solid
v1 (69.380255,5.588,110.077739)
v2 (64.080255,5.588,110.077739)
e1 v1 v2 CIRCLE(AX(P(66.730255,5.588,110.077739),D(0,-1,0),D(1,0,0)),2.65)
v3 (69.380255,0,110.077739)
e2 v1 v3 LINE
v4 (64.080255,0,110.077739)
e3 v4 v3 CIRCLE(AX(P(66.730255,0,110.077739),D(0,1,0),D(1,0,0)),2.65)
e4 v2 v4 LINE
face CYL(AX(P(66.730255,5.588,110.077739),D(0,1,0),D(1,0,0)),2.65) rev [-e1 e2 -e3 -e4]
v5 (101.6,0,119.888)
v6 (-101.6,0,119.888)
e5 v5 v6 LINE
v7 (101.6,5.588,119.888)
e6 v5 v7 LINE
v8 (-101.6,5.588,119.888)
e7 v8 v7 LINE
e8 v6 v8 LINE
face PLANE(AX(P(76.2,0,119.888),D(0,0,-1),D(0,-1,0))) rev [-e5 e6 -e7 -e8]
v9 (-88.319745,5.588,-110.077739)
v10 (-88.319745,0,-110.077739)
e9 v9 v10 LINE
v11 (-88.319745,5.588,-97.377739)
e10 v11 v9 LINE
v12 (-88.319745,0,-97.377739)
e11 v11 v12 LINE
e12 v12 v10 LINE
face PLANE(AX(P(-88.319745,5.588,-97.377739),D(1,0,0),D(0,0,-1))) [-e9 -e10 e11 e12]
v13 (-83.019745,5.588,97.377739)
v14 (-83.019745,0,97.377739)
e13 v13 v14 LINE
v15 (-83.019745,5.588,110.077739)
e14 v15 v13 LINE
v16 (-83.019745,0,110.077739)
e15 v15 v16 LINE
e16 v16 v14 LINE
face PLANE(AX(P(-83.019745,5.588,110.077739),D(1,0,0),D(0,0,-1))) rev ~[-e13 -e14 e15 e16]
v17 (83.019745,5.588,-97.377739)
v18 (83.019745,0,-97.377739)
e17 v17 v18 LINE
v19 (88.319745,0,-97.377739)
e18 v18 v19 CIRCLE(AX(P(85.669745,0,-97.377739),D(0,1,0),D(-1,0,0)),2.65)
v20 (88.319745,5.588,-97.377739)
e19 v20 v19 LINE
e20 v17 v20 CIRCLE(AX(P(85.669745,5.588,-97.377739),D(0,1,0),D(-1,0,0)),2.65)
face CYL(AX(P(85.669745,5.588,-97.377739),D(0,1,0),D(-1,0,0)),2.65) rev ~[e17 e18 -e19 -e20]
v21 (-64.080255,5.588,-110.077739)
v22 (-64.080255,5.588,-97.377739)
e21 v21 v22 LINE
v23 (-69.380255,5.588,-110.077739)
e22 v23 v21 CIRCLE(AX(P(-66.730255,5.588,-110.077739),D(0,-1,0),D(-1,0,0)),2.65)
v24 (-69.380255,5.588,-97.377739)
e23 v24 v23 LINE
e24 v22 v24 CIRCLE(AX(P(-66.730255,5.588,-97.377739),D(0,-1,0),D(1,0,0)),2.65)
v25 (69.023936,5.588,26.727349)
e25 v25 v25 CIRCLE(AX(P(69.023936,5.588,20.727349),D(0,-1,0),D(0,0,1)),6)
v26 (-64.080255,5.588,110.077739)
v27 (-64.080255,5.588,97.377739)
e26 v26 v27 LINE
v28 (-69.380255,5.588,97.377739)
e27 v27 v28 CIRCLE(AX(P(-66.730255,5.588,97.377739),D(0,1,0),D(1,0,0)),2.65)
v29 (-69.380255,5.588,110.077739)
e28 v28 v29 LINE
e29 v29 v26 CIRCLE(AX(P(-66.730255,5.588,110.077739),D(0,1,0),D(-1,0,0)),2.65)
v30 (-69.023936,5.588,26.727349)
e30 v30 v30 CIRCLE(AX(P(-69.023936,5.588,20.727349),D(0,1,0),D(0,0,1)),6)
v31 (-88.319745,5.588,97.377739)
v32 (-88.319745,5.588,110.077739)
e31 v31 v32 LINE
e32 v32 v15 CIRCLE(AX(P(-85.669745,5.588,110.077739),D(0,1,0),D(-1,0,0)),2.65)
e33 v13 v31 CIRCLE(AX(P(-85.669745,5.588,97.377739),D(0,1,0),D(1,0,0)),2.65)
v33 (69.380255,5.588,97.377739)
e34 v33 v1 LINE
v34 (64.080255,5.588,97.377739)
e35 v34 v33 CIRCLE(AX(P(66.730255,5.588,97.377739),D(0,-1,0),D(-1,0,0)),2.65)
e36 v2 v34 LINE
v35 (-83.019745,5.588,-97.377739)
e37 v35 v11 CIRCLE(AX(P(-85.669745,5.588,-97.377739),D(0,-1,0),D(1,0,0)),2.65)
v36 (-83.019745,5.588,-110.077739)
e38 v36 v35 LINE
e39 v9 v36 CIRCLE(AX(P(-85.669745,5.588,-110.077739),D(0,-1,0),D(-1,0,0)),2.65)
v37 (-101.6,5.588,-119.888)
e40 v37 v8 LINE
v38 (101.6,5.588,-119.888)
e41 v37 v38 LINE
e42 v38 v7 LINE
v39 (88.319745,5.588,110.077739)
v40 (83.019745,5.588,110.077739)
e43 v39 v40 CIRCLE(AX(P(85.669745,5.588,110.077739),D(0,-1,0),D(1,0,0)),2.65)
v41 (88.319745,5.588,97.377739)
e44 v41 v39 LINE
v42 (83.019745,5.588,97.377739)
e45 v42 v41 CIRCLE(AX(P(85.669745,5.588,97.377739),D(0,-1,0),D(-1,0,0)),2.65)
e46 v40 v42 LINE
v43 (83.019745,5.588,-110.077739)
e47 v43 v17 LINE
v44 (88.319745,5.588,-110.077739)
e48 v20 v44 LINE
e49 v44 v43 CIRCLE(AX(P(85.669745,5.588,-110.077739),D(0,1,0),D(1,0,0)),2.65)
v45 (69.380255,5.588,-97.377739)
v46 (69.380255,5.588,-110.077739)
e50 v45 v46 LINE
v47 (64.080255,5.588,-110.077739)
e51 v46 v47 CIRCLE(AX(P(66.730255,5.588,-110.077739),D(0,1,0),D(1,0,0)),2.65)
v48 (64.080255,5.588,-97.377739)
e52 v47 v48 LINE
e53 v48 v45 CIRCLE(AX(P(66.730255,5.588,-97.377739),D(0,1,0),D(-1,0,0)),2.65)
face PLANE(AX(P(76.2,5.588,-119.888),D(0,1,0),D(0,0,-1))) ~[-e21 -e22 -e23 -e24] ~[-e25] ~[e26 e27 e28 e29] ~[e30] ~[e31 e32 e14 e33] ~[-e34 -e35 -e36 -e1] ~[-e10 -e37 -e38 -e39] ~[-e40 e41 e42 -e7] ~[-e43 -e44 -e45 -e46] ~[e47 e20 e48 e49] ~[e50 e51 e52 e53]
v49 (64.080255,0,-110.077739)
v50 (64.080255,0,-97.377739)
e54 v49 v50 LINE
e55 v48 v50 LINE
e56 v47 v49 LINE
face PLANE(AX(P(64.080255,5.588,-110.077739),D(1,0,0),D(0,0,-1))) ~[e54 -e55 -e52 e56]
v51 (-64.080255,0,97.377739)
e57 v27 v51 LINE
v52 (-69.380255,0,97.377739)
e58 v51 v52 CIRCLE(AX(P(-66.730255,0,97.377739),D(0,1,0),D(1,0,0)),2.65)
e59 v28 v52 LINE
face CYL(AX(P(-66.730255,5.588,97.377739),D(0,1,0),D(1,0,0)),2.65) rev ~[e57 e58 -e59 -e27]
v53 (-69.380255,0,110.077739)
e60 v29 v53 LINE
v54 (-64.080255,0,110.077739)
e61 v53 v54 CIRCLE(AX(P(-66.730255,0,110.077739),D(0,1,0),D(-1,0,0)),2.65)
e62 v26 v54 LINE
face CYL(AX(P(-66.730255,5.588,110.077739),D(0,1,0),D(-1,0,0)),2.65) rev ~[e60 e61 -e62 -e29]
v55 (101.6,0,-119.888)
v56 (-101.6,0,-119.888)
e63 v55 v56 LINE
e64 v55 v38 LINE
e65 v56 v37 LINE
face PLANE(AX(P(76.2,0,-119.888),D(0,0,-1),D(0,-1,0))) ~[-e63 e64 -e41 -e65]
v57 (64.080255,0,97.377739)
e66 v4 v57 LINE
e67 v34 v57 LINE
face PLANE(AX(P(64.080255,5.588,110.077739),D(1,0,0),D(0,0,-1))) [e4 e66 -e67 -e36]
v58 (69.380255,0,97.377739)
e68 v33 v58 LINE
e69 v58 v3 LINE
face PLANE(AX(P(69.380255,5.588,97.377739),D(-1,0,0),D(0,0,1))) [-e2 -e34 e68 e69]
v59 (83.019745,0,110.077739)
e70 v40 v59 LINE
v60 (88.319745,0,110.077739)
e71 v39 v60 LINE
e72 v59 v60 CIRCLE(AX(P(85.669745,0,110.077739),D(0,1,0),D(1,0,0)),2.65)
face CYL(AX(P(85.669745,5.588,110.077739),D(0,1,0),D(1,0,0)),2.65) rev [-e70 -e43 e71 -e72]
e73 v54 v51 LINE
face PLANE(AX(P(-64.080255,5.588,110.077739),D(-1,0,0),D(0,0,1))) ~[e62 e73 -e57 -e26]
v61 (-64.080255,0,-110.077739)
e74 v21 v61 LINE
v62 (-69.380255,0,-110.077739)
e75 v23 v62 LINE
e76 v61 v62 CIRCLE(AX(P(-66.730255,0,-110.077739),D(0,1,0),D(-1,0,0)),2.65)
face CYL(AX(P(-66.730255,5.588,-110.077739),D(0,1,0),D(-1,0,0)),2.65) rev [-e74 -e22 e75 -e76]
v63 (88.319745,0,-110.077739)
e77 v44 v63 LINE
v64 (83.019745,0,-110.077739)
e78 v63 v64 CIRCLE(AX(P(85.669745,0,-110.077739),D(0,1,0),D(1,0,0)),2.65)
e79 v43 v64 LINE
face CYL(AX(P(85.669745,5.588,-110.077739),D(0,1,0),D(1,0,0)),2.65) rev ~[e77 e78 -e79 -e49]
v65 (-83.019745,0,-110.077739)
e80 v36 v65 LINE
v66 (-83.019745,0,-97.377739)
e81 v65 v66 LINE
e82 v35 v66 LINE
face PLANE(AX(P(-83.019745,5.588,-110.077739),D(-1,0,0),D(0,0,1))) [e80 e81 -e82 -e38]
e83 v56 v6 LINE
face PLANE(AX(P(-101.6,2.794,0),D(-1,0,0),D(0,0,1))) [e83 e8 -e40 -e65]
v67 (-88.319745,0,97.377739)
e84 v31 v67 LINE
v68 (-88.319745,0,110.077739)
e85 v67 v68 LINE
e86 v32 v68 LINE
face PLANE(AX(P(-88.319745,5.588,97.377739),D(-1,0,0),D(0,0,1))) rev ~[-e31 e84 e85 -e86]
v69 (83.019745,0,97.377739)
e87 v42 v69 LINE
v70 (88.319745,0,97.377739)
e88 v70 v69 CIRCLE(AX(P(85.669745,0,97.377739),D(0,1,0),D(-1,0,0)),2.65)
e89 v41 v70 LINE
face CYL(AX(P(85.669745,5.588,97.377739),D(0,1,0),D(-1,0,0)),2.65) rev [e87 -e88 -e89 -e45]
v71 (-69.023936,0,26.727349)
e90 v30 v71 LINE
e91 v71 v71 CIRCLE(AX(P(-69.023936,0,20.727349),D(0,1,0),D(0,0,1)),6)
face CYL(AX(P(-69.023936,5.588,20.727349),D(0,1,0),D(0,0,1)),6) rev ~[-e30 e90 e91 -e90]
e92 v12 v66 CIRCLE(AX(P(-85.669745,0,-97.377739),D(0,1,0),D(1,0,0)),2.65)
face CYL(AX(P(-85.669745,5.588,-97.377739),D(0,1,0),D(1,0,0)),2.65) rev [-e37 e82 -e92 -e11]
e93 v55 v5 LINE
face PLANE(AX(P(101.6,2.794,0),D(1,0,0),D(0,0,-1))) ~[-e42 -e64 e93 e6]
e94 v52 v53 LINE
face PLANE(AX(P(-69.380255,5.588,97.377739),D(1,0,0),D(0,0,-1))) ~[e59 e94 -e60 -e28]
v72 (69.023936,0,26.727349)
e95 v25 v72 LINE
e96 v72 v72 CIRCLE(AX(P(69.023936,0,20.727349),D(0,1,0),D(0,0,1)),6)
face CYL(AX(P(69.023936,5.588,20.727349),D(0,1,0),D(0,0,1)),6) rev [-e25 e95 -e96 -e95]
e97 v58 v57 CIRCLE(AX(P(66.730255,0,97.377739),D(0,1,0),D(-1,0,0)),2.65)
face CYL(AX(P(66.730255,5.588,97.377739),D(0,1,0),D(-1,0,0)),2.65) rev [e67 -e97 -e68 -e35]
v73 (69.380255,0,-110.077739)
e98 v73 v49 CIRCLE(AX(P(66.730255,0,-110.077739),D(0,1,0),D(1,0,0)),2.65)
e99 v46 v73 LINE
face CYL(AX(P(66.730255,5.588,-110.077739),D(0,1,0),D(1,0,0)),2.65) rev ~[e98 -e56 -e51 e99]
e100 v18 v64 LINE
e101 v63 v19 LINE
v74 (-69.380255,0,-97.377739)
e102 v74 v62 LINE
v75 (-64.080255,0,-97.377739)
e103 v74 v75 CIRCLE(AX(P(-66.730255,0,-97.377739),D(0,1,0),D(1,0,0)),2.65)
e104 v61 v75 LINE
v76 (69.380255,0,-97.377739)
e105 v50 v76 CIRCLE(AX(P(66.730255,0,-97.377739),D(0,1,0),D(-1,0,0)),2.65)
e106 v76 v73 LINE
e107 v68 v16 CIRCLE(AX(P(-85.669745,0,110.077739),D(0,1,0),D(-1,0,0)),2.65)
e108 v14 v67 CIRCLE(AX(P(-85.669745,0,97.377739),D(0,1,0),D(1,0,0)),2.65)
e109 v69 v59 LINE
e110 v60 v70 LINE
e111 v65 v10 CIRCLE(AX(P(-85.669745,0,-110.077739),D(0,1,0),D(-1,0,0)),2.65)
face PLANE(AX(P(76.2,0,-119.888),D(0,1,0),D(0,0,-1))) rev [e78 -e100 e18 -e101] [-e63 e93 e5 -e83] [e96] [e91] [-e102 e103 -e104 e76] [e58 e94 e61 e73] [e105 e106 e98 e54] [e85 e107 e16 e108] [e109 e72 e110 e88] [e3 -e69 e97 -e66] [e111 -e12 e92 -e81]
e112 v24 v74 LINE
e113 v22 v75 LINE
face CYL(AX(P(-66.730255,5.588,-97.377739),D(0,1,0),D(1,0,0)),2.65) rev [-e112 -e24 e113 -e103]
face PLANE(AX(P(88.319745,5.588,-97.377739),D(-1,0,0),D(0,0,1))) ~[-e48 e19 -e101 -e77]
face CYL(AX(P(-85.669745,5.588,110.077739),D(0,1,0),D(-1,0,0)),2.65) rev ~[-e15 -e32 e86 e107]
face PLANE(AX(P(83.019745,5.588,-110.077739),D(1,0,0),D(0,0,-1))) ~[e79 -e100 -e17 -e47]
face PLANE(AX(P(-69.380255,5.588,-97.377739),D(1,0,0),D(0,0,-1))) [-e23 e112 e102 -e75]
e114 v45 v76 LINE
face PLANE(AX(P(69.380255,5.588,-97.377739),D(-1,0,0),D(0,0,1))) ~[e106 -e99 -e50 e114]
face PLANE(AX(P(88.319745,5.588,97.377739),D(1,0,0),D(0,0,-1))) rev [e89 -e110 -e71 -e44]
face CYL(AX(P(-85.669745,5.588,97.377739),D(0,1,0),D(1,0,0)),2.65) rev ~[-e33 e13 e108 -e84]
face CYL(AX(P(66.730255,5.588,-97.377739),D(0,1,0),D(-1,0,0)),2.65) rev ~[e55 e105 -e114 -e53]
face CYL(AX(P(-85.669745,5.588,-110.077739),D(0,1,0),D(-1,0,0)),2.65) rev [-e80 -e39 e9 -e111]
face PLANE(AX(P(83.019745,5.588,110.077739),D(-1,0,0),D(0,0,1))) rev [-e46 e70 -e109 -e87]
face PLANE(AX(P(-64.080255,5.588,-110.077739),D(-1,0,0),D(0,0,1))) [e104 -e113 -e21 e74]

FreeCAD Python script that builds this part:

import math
import FreeCAD as App
import Part
import Sketcher
from FreeCAD import Vector
Q = App.Units.Quantity


def add_polygon(sketch, points):
    """Adds a closed chain of lines whose ends are joined by coincident constraints."""
    first, n = sketch.GeometryCount, len(points)
    for a, b in zip(points, points[1:] + points[:1]):
        sketch.addGeometry(Part.LineSegment(App.Vector(*a, 0), App.Vector(*b, 0)), False)
    for i in range(n):
        sketch.addConstraint(Sketcher.Constraint("Coincident", first + i, 2, first + (i + 1) % n, 1))

doc = App.newDocument("Part")
params = doc.addObject("Spreadsheet::Sheet", "Params")
for row, (alias, value) in enumerate([
    ("sketch1_width", "6 in"),
    ("sketch1_height", "9.44 in"),
    ("pad1_length", "0.22 in"),
    ("sketch2_height", "0.5 in"),
    ("sketch3_height", "0.5 in"),
    ("sketch4_width", "0.22 in"),
    ("sketch4_height", "9.44 in"),
    ("pad2_length", "1 in"),
    ("sketch5_height", "0.5 in"),
], start=1):
    params.set(f"A{row}", alias)
    params.set(f"B{row}", "=" + value)
    params.setAlias(f"B{row}", alias)

body = doc.addObject("PartDesign::Body", "Body")

sketch1 = doc.addObject("Sketcher::SketchObject", "Sketch")
body.addObject(sketch1)
sketch1.AttachmentSupport = (doc.XZ_Plane, [""])
sketch1.MapMode = "FlatFace"
add_polygon(sketch1, [(-76, -120), (-76, 120), (76, 120), (76, -120)])
sketch1.addConstraint([
    Sketcher.Constraint("Vertical", 0),
    Sketcher.Constraint("Horizontal", 1),
    Sketcher.Constraint("Vertical", 2),
    Sketcher.Constraint("Horizontal", 3),
    Sketcher.Constraint("Symmetric", 0, 2, 2, 2, -1, 1),
    Sketcher.Constraint("DistanceX", 1, 1, 1, 2, Q("6 in")),
    Sketcher.Constraint("DistanceY", 0, 1, 0, 2, Q("9.44 in")),
])
sketch1.setExpression("Constraints[9]", "Params.sketch1_width")
sketch1.setExpression("Constraints[10]", "Params.sketch1_height")
pad1 = doc.addObject("PartDesign::Pad", "Pad")
body.addObject(pad1)
pad1.Profile = sketch1
pad1.setExpression("Length", "Params.pad1_length")
pad1.Reversed = True

sketch2 = doc.addObject("Sketcher::SketchObject", "Sketch001")
body.addObject(sketch2)
sketch2.AttachmentSupport = (doc.XZ_Plane, [""])
sketch2.MapMode = "FlatFace"
sketch2.AttachmentOffset = App.Placement(Vector(0, 0, -0.22 * 25.4), App.Rotation())
sketch2.addGeometry([
    Part.LineSegment(Vector(-69.4, -110.1, 0), Vector(-69.4, -97.4, 0)),
    Part.ArcOfCircle(Part.Circle(Vector(-66.7, -97.4, 0), Vector(0, 0, 1), 2.6), math.radians(0), math.radians(180)),
    Part.LineSegment(Vector(-64.1, -97.4, 0), Vector(-64.1, -110.1, 0)),
    Part.ArcOfCircle(Part.Circle(Vector(-66.7, -110.1, 0), Vector(0, 0, 1), 2.6), math.radians(180), math.radians(360)),
], False)
sketch2.addConstraint([
    Sketcher.Constraint("Tangent", 0, 2, 1, 2),
    Sketcher.Constraint("Tangent", 1, 1, 2, 1),
    Sketcher.Constraint("Tangent", 2, 2, 3, 2),
    Sketcher.Constraint("Tangent", 3, 1, 0, 1),
    Sketcher.Constraint("Vertical", 0),
    Sketcher.Constraint("Vertical", 2),
    Sketcher.Constraint("DistanceY", 0, 1, 0, 2, Q("0.5 in")),
    Sketcher.Constraint("Radius", 1, Q("2.65 mm")),
    Sketcher.Constraint("DistanceY", 1, 3, -1, 1, Q("97.377739 mm")),
    Sketcher.Constraint("DistanceX", 1, 3, -1, 1, Q("66.730255 mm")),
])
sketch2.setExpression("Constraints[6]", "Params.sketch2_height")
pocket1 = doc.addObject("PartDesign::Pocket", "Pocket")
body.addObject(pocket1)
pocket1.Profile = sketch2
pocket1.Type = "ThroughAll"
pocket1.Reversed = True
doc.recompute()

mirrored = doc.addObject("PartDesign::Mirrored", "Mirrored")
body.addObject(mirrored)
mirrored.Originals = [pocket1]
mirrored.MirrorPlane = (doc.XY_Plane, [""])
body.Tip = mirrored
doc.recompute()

mirrored2 = doc.addObject("PartDesign::Mirrored", "Mirrored001")
body.addObject(mirrored2)
mirrored2.Originals = [pocket1]
mirrored2.MirrorPlane = (doc.YZ_Plane, [""])
body.Tip = mirrored2

sketch3 = doc.addObject("Sketcher::SketchObject", "Sketch002")
body.addObject(sketch3)
sketch3.AttachmentSupport = (doc.XZ_Plane, [""])
sketch3.MapMode = "FlatFace"
sketch3.AttachmentOffset = App.Placement(Vector(0, 0, -0.22 * 25.4), App.Rotation())
sketch3.addGeometry([
    Part.LineSegment(Vector(69.4, 110.1, 0), Vector(69.4, 97.4, 0)),
    Part.ArcOfCircle(Part.Circle(Vector(66.7, 97.4, 0), Vector(0, 0, 1), 2.6), math.radians(180), math.radians(360)),
    Part.LineSegment(Vector(64.1, 97.4, 0), Vector(64.1, 110.1, 0)),
    Part.ArcOfCircle(Part.Circle(Vector(66.7, 110.1, 0), Vector(0, 0, 1), 2.6), math.radians(0), math.radians(180)),
], False)
sketch3.addConstraint([
    Sketcher.Constraint("Tangent", 0, 2, 1, 2),
    Sketcher.Constraint("Tangent", 1, 1, 2, 1),
    Sketcher.Constraint("Tangent", 2, 2, 3, 2),
    Sketcher.Constraint("Tangent", 3, 1, 0, 1),
    Sketcher.Constraint("Vertical", 0),
    Sketcher.Constraint("Vertical", 2),
    Sketcher.Constraint("DistanceY", 0, 2, 0, 1, Q("0.5 in")),
    Sketcher.Constraint("Radius", 1, Q("2.65 mm")),
    Sketcher.Constraint("DistanceY", -1, 1, 1, 3, Q("97.377739 mm")),
    Sketcher.Constraint("DistanceX", -1, 1, 1, 3, Q("66.730255 mm")),
])
sketch3.setExpression("Constraints[6]", "Params.sketch3_height")
pocket2 = doc.addObject("PartDesign::Pocket", "Pocket001")
body.addObject(pocket2)
pocket2.Profile = sketch3
pocket2.Type = "ThroughAll"
pocket2.Reversed = True

sketch4 = doc.addObject("Sketcher::SketchObject", "Sketch003")
body.addObject(sketch4)
sketch4.AttachmentSupport = (doc.YZ_Plane, [""])
sketch4.MapMode = "FlatFace"
sketch4.AttachmentOffset = App.Placement(Vector(0, 0, -3 * 25.4), App.Rotation())
add_polygon(sketch4, [(6, -120), (0, -120), (0, 120), (6, 120)])
sketch4.addConstraint([
    Sketcher.Constraint("Horizontal", 0),
    Sketcher.Constraint("Vertical", 1),
    Sketcher.Constraint("Horizontal", 2),
    Sketcher.Constraint("Vertical", 3),
    Sketcher.Constraint("Symmetric", 0, 2, 1, 2, -1, 1),
    Sketcher.Constraint("DistanceX", 0, 2, 0, 1, Q("0.22 in")),
    Sketcher.Constraint("DistanceY", 1, 1, 1, 2, Q("9.44 in")),
])
sketch4.setExpression("Constraints[9]", "Params.sketch4_width")
sketch4.setExpression("Constraints[10]", "Params.sketch4_height")
pad2 = doc.addObject("PartDesign::Pad", "Pad001")
body.addObject(pad2)
pad2.Profile = sketch4
pad2.setExpression("Length", "Params.pad2_length")
pad2.Reversed = True

sketch5 = doc.addObject("Sketcher::SketchObject", "Sketch004")
body.addObject(sketch5)
sketch5.AttachmentSupport = (doc.XZ_Plane, [""])
sketch5.MapMode = "FlatFace"
sketch5.AttachmentOffset = App.Placement(Vector(0, 0, -0.22 * 25.4), App.Rotation())
sketch5.addGeometry([
    Part.LineSegment(Vector(-69.4, -110.1, 0), Vector(-69.4, -97.4, 0)),
    Part.ArcOfCircle(Part.Circle(Vector(-66.7, -97.4, 0), Vector(0, 0, 1), 2.6), math.radians(0), math.radians(180)),
    Part.LineSegment(Vector(-64.1, -97.4, 0), Vector(-64.1, -110.1, 0)),
    Part.ArcOfCircle(Part.Circle(Vector(-66.7, -110.1, 0), Vector(0, 0, 1), 2.6), math.radians(180), math.radians(360)),
    Part.LineSegment(Vector(-88.3, -110.1, 0), Vector(-88.3, -97.4, 0)),
    Part.ArcOfCircle(Part.Circle(Vector(-85.7, -97.4, 0), Vector(0, 0, 1), 2.6), math.radians(0), math.radians(180)),
    Part.LineSegment(Vector(-83, -97.4, 0), Vector(-83, -110.1, 0)),
    Part.ArcOfCircle(Part.Circle(Vector(-85.7, -110.1, 0), Vector(0, 0, 1), 2.6), math.radians(180), math.radians(360)),
    Part.LineSegment(Vector(-88.3, 97.4, 0), Vector(-88.3, 110.1, 0)),
    Part.ArcOfCircle(Part.Circle(Vector(-85.7, 110.1, 0), Vector(0, 0, 1), 2.6), math.radians(0), math.radians(180)),
    Part.LineSegment(Vector(-83, 110.1, 0), Vector(-83, 97.4, 0)),
    Part.ArcOfCircle(Part.Circle(Vector(-85.7, 97.4, 0), Vector(0, 0, 1), 2.6), math.radians(180), math.radians(360)),
], False)
sketch5.addConstraint([
    Sketcher.Constraint("Tangent", 0, 2, 1, 2),
    Sketcher.Constraint("Tangent", 1, 1, 2, 1),
    Sketcher.Constraint("Tangent", 2, 2, 3, 2),
    Sketcher.Constraint("Tangent", 3, 1, 0, 1),
    Sketcher.Constraint("Tangent", 4, 2, 5, 2),
    Sketcher.Constraint("Tangent", 5, 1, 6, 1),
    Sketcher.Constraint("Tangent", 6, 2, 7, 2),
    Sketcher.Constraint("Tangent", 7, 1, 4, 1),
    Sketcher.Constraint("Tangent", 8, 2, 9, 2),
    Sketcher.Constraint("Tangent", 9, 1, 10, 1),
    Sketcher.Constraint("Tangent", 10, 2, 11, 2),
    Sketcher.Constraint("Tangent", 11, 1, 8, 1),
    Sketcher.Constraint("Vertical", 0),
    Sketcher.Constraint("Vertical", 2),
    Sketcher.Constraint("Vertical", 4),
    Sketcher.Constraint("Vertical", 6),
    Sketcher.Constraint("Vertical", 8),
    Sketcher.Constraint("Vertical", 10),
    Sketcher.Constraint("Equal", 3, 5),
    Sketcher.Constraint("Equal", 7, 9),
    Sketcher.Constraint("Symmetric", 7, 3, 9, 3, -1),
    Sketcher.Constraint("Horizontal", 1, 3, 5, 3),
    Sketcher.Constraint("Horizontal", 3, 3, 7, 3),
    Sketcher.Constraint("Equal", 6, 8),
    Sketcher.Constraint("DistanceY", 0, 1, 0, 2, Q("0.5 in")),
    Sketcher.Constraint("Radius", 1, Q("2.65 mm")),
    Sketcher.Constraint("DistanceY", 1, 3, -1, 1, Q("97.377739 mm")),
    Sketcher.Constraint("DistanceX", 5, 3, 1, 3, Q("18.93949 mm")),
    Sketcher.Constraint("DistanceX", 1, 3, -1, 1, Q("66.730255 mm")),
])
sketch5.setExpression("Constraints[24]", "Params.sketch5_height")
pocket3 = doc.addObject("PartDesign::Pocket", "Pocket002")
body.addObject(pocket3)
pocket3.Profile = sketch5
pocket3.Type = "ThroughAll"
pocket3.Reversed = True
doc.recompute()

mirrored3 = doc.addObject("PartDesign::Mirrored", "Mirrored002")
body.addObject(mirrored3)
mirrored3.Originals = [pad2, pocket3]
mirrored3.MirrorPlane = (doc.YZ_Plane, [""])
body.Tip = mirrored3

sketch6 = doc.addObject("Sketcher::SketchObject", "Sketch005")
body.addObject(sketch6)
sketch6.AttachmentSupport = (doc.XZ_Plane, [""])
sketch6.MapMode = "FlatFace"
sketch6.AttachmentOffset = App.Placement(Vector(0, 0, -0.22 * 25.4), App.Rotation())
sketch6.addGeometry(Part.Circle(Vector(-69, 21, 0), Vector(0, 0, 1), 6), False)
sketch6.addConstraint([
    Sketcher.Constraint("Diameter", 0, Q("12 mm")),
    Sketcher.Constraint("DistanceY", -1, 1, 0, 3, Q("20.727349 mm")),
    Sketcher.Constraint("DistanceX", 0, 3, -1, 1, Q("69.023936 mm")),
])
pocket4 = doc.addObject("PartDesign::Pocket", "Pocket003")
body.addObject(pocket4)
pocket4.Profile = sketch6
pocket4.Type = "ThroughAll"
pocket4.Reversed = True
doc.recompute()

mirrored4 = doc.addObject("PartDesign::Mirrored", "Mirrored003")
body.addObject(mirrored4)
mirrored4.Originals = [pocket4]
mirrored4.MirrorPlane = (doc.YZ_Plane, [""])
body.Tip = mirrored4

doc.recompute()
